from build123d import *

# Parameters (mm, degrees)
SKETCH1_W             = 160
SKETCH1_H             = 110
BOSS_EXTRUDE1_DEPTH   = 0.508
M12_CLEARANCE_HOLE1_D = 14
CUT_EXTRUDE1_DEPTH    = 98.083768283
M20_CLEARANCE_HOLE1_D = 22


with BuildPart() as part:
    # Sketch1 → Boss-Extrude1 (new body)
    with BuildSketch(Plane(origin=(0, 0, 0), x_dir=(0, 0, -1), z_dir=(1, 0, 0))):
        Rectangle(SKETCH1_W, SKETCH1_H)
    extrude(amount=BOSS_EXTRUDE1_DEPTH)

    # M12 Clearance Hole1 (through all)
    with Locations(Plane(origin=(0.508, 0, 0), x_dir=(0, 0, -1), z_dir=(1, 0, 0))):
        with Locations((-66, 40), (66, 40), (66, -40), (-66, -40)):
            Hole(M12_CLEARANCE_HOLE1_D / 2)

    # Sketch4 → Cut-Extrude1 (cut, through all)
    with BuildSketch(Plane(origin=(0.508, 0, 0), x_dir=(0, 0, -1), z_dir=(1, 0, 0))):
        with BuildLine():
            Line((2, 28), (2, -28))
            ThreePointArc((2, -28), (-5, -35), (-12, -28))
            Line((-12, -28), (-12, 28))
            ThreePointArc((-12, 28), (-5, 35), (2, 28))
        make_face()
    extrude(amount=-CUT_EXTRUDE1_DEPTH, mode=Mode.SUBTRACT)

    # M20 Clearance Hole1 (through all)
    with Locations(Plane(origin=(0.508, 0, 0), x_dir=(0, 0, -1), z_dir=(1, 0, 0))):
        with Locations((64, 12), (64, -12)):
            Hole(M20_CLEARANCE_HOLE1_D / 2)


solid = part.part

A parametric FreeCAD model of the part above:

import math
import FreeCAD as App
import Part
import Sketcher

V = App.Vector
Q = App.Units.Quantity


def add_polygon(sketch, points):
    """Adds a closed chain of lines whose ends are joined by coincident constraints."""
    first, n = sketch.GeometryCount, len(points)
    for a, b in zip(points, points[1:] + points[:1]):
        sketch.addGeometry(Part.LineSegment(App.Vector(*a, 0), App.Vector(*b, 0)), False)
    for i in range(n):
        sketch.addConstraint(Sketcher.Constraint("Coincident", first + i, 2, first + (i + 1) % n, 1))

doc = App.newDocument("Part")
body = doc.addObject("PartDesign::Body", "Body")

# Sketch on YZ plane
sketch1 = body.newObject("Sketcher::SketchObject", "Sketch")
sketch1.AttachmentSupport = (doc.getObject("YZ_Plane"), [""])
sketch1.MapMode = "FlatFace"
add_polygon(sketch1, [(55, 80), (-55, 80), (-55, -80), (55, -80)])  # lines 0-3
sketch1.addConstraint([
    Sketcher.Constraint("Horizontal", 0),
    Sketcher.Constraint("Vertical", 1),
    Sketcher.Constraint("Horizontal", 2),
    Sketcher.Constraint("Vertical", 3),
    Sketcher.Constraint("Symmetric", 0, 2, 2, 2, -1, 1),
    Sketcher.Constraint("DistanceX", 0, 2, 0, 1, Q("110 mm")),
    Sketcher.Constraint("DistanceY", 1, 2, 1, 1, Q("160 mm")),
])
pad1 = body.newObject("PartDesign::Pad", "Pad")
pad1.Profile = sketch1
pad1.Length = 0.508

# Sketch on YZ plane
sketch2 = body.newObject("Sketcher::SketchObject", "Sketch001")
sketch2.AttachmentSupport = (doc.getObject("YZ_Plane"), [""])
sketch2.MapMode = "FlatFace"
sketch2.AttachmentOffset = App.Placement(V(0, 0, 0.508), App.Rotation())
sketch2.addGeometry([
    Part.Circle(V(40, 66, 0), V(0, 0, 1), 7),
    Part.Circle(V(40, -66, 0), V(0, 0, 1), 7),
    Part.Circle(V(-40, -66, 0), V(0, 0, 1), 7),
    Part.Circle(V(-40, 66, 0), V(0, 0, 1), 7),
], False)
sketch2.addConstraint([
    Sketcher.Constraint("Equal", 0, 1),
    Sketcher.Constraint("Equal", 1, 2),
    Sketcher.Constraint("Equal", 2, 3),
    Sketcher.Constraint("Symmetric", 0, 3, 2, 3, -1, 1),
    Sketcher.Constraint("Symmetric", 1, 3, 3, 3, -1, 1),
    Sketcher.Constraint("Symmetric", 1, 3, 2, 3, -2),
    Sketcher.Constraint("Diameter", 0, Q("14 mm")),
    Sketcher.Constraint("DistanceX", -1, 1, 0, 3, Q("40 mm")),
    Sketcher.Constraint("DistanceY", -1, 1, 0, 3, Q("66 mm")),
])
doc.recompute()
hole = body.newObject("PartDesign::Hole", "Hole")
hole.Profile = sketch2
hole.ThreadType = "None"
hole.Diameter = 14
hole.DepthType = "ThroughAll"

# Sketch on YZ plane
sketch3 = body.newObject("Sketcher::SketchObject", "Sketch002")
sketch3.AttachmentSupport = (doc.getObject("YZ_Plane"), [""])
sketch3.MapMode = "FlatFace"
sketch3.AttachmentOffset = App.Placement(V(0, 0, 0.508), App.Rotation())
sketch3.addGeometry([
    Part.LineSegment(V(-28, -2, 0), V(28, -2, 0)),
    Part.ArcOfCircle(Part.Circle(V(28, 5, 0), V(0, 0, 1), 7), math.radians(-90), math.radians(90)),
    Part.LineSegment(V(28, 12, 0), V(-28, 12, 0)),
    Part.ArcOfCircle(Part.Circle(V(-28, 5, 0), V(0, 0, 1), 7), math.radians(90), math.radians(270)),
], False)
sketch3.addConstraint([
    Sketcher.Constraint("Tangent", 0, 2, 1, 1),
    Sketcher.Constraint("Tangent", 1, 2, 2, 1),
    Sketcher.Constraint("Tangent", 2, 2, 3, 1),
    Sketcher.Constraint("Tangent", 3, 2, 0, 1),
    Sketcher.Constraint("Horizontal", 0),
    Sketcher.Constraint("Horizontal", 2),
    Sketcher.Constraint("Radius", 1, Q("7 mm")),
    Sketcher.Constraint("DistanceX", 0, 1, 0, 2, Q("56 mm")),
    Sketcher.Constraint("DistanceX", -1, 1, 1, 3, Q("28 mm")),
    Sketcher.Constraint("DistanceY", -1, 1, 1, 3, Q("5 mm")),
])
pocket1 = body.newObject("PartDesign::Pocket", "Pocket")
pocket1.Profile = sketch3
pocket1.Type = "ThroughAll"

# Sketch on YZ plane
sketch4 = body.newObject("Sketcher::SketchObject", "Sketch003")
sketch4.AttachmentSupport = (doc.getObject("YZ_Plane"), [""])
sketch4.MapMode = "FlatFace"
sketch4.AttachmentOffset = App.Placement(V(0, 0, 0.508), App.Rotation())
sketch4.addGeometry([
    Part.Circle(V(12, -64, 0), V(0, 0, 1), 11),
    Part.Circle(V(-12, -64, 0), V(0, 0, 1), 11),
], False)
sketch4.addConstraint([
    Sketcher.Constraint("Equal", 0, 1),
    Sketcher.Constraint("Symmetric", 0, 3, 1, 3, -2),
    Sketcher.Constraint("Diameter", 0, Q("22 mm")),
    Sketcher.Constraint("DistanceX", -1, 1, 0, 3, Q("12 mm")),
    Sketcher.Constraint("DistanceY", 0, 3, -1, 1, Q("64 mm")),
])
doc.recompute()
hole2 = body.newObject("PartDesign::Hole", "Hole001")
hole2.Profile = sketch4
hole2.ThreadType = "None"
hole2.Diameter = 22
hole2.DepthType = "ThroughAll"

doc.recompute()
